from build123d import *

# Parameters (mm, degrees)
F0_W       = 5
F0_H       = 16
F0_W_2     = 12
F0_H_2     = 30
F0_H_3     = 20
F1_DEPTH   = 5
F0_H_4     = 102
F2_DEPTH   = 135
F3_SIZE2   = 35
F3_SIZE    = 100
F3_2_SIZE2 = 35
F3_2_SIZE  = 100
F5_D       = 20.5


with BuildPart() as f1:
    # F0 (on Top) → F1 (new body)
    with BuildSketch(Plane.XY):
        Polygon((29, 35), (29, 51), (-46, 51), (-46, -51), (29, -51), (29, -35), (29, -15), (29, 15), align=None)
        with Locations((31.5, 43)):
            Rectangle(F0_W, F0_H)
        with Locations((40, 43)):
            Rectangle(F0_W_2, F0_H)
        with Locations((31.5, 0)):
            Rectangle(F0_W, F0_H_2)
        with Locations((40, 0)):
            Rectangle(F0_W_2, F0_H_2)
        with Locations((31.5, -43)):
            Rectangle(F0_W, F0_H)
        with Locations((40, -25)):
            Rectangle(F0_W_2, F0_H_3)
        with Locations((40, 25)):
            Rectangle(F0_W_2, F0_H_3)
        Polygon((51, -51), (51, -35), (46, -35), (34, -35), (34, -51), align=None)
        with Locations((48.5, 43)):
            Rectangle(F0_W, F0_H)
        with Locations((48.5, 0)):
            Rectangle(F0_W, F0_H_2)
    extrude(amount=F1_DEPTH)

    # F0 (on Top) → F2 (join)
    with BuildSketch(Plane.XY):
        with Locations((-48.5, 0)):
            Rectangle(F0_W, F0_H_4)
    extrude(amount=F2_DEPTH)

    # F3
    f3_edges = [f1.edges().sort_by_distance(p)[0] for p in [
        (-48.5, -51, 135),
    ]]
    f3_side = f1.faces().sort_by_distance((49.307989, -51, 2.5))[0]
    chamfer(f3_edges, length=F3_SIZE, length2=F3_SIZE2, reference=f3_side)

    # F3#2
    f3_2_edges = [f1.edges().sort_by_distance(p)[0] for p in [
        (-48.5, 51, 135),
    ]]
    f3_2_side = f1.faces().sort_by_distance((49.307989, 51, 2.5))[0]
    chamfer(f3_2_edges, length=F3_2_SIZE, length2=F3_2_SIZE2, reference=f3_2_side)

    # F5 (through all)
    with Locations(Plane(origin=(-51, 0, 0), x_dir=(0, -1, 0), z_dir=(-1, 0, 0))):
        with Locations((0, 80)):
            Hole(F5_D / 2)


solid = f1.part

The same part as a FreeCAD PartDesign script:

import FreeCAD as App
import Part
import Sketcher
from FreeCAD import Vector
Q = App.Units.Quantity


def edges_at(feature, points):
    """Names of the edges that pass closest to the given points."""
    edges = feature.Shape.Edges
    near = lambda p: min(range(len(edges)), key=lambda i: edges[i].distToShape(Part.Vertex(*p))[0])
    return sorted({f"Edge{near(p) + 1}" for p in points})


def add_polygon(sketch, points):
    """Adds a closed chain of lines whose ends are joined by coincident constraints."""
    first, n = sketch.GeometryCount, len(points)
    for a, b in zip(points, points[1:] + points[:1]):
        sketch.addGeometry(Part.LineSegment(App.Vector(*a, 0), App.Vector(*b, 0)), False)
    for i in range(n):
        sketch.addConstraint(Sketcher.Constraint("Coincident", first + i, 2, first + (i + 1) % n, 1))

doc = App.newDocument("Part")
body = doc.addObject("PartDesign::Body", "Body")

sketch1 = doc.addObject("Sketcher::SketchObject", "Sketch")
body.addObject(sketch1)
sketch1.AttachmentSupport = (doc.XY_Plane, [""])
sketch1.MapMode = "FlatFace"
add_polygon(sketch1, [(-46, -51), (51, -51), (51, -35), (46, -35), (46, -15), (51, -15), (51, 15), (46, 15), (46, 35), (51, 35), (51, 51), (-46, 51)])
add_polygon(sketch1, [(34, -35), (29, -35), (29, -15), (34, -15)])
add_polygon(sketch1, [(29, 35), (34, 35), (34, 15), (29, 15)])
sketch1.addConstraint([
    Sketcher.Constraint("Horizontal", 0),
    Sketcher.Constraint("Vertical", 1),
    Sketcher.Constraint("Horizontal", 2),
    Sketcher.Constraint("Vertical", 3),
    Sketcher.Constraint("Horizontal", 4),
    Sketcher.Constraint("Vertical", 5),
    Sketcher.Constraint("Horizontal", 6),
    Sketcher.Constraint("Vertical", 7),
    Sketcher.Constraint("Horizontal", 8),
    Sketcher.Constraint("Vertical", 9),
    Sketcher.Constraint("Horizontal", 10),
    Sketcher.Constraint("Vertical", 11),
    Sketcher.Constraint("Horizontal", 12),
    Sketcher.Constraint("Vertical", 13),
    Sketcher.Constraint("Horizontal", 14),
    Sketcher.Constraint("Vertical", 15),
    Sketcher.Constraint("Horizontal", 16),
    Sketcher.Constraint("Vertical", 17),
    Sketcher.Constraint("Horizontal", 18),
    Sketcher.Constraint("Vertical", 19),
    Sketcher.Constraint("Symmetric", 3, 2, 6, 2, -1),
    Sketcher.Constraint("Symmetric", 1, 2, 8, 2, -1),
    Sketcher.Constraint("Symmetric", 15, 2, 16, 2, -1),
    Sketcher.Constraint("Symmetric", 13, 2, 18, 2, -1),
    Sketcher.Constraint("Horizontal", 2, 2, 12, 2),
    Sketcher.Constraint("Horizontal", 4, 2, 13, 2),
    Sketcher.Constraint("Vertical", 1, 2, 4, 2),
    Sketcher.Constraint("Equal", 8, 12),
    Sketcher.Constraint("Equal", 1, 9),
    Sketcher.Constraint("DistanceX", 0, 1, 0, 2, Q("97 mm")),
    Sketcher.Constraint("DistanceX", 2, 2, 2, 1, Q("5 mm")),
    Sketcher.Constraint("DistanceY", 1, 1, 1, 2, Q("16 mm")),
    Sketcher.Constraint("DistanceY", 3, 1, 3, 2, Q("20 mm")),
    Sketcher.Constraint("DistanceY", 5, 1, 5, 2, Q("30 mm")),
    Sketcher.Constraint("DistanceX", -1, 1, 0, 2, Q("51 mm")),
    Sketcher.Constraint("DistanceX", -1, 1, 12, 2, Q("29 mm")),
])
pad1 = doc.addObject("PartDesign::Pad", "Pad")
body.addObject(pad1)
pad1.Profile = sketch1
pad1.Length = 5

sketch2 = doc.addObject("Sketcher::SketchObject", "Sketch001")
body.addObject(sketch2)
sketch2.AttachmentSupport = (doc.XY_Plane, [""])
sketch2.MapMode = "FlatFace"
add_polygon(sketch2, [(-51, 51), (-51, -51), (-46, -51), (-46, 51)])
sketch2.addConstraint([
    Sketcher.Constraint("Vertical", 0),
    Sketcher.Constraint("Horizontal", 1),
    Sketcher.Constraint("Vertical", 2),
    Sketcher.Constraint("Horizontal", 3),
    Sketcher.Constraint("DistanceX", 1, 1, 1, 2, Q("5 mm")),
    Sketcher.Constraint("DistanceY", 0, 2, 0, 1, Q("102 mm")),
    Sketcher.Constraint("DistanceX", 0, 2, -1, 1, Q("51 mm")),
    Sketcher.Constraint("DistanceY", 0, 2, -1, 1, Q("51 mm")),
])
pad2 = doc.addObject("PartDesign::Pad", "Pad001")
body.addObject(pad2)
pad2.Profile = sketch2
pad2.Length = 135
doc.recompute()

chamfer = doc.addObject("PartDesign::Chamfer", "Chamfer")
body.addObject(chamfer)
chamfer.Base = (pad2, edges_at(pad2, [(-48.5, -51, 135)]))
chamfer.ChamferType = "Two distances"
chamfer.Size = 100
chamfer.Size2 = 35
chamfer.FlipDirection = True
doc.recompute()

chamfer2 = doc.addObject("PartDesign::Chamfer", "Chamfer001")
body.addObject(chamfer2)
chamfer2.Base = (chamfer, edges_at(chamfer, [(-48.5, 51, 135)]))
chamfer2.ChamferType = "Two distances"
chamfer2.Size = 100
chamfer2.Size2 = 35
chamfer2.FlipDirection = True

sketch3 = doc.addObject("Sketcher::SketchObject", "Sketch002")
body.addObject(sketch3)
sketch3.AttachmentSupport = (doc.YZ_Plane, [""])
sketch3.MapMode = "FlatFace"
sketch3.AttachmentOffset = App.Placement(Vector(0, 0, -51), App.Rotation())
sketch3.addGeometry(Part.Circle(Vector(0, 80, 0), Vector(0, 0, 1), 10), False)
sketch3.addConstraint([
    Sketcher.Constraint("PointOnObject", 0, 3, -2),
    Sketcher.Constraint("Diameter", 0, Q("20.5 mm")),
    Sketcher.Constraint("DistanceY", -1, 1, 0, 3, Q("80 mm")),
])
doc.recompute()
hole = doc.addObject("PartDesign::Hole", "Hole")
body.addObject(hole)
hole.Profile = sketch3
hole.ThreadType = "None"
hole.Diameter = 20.5
hole.DepthType = "ThroughAll"
hole.Reversed = True

doc.recompute()
